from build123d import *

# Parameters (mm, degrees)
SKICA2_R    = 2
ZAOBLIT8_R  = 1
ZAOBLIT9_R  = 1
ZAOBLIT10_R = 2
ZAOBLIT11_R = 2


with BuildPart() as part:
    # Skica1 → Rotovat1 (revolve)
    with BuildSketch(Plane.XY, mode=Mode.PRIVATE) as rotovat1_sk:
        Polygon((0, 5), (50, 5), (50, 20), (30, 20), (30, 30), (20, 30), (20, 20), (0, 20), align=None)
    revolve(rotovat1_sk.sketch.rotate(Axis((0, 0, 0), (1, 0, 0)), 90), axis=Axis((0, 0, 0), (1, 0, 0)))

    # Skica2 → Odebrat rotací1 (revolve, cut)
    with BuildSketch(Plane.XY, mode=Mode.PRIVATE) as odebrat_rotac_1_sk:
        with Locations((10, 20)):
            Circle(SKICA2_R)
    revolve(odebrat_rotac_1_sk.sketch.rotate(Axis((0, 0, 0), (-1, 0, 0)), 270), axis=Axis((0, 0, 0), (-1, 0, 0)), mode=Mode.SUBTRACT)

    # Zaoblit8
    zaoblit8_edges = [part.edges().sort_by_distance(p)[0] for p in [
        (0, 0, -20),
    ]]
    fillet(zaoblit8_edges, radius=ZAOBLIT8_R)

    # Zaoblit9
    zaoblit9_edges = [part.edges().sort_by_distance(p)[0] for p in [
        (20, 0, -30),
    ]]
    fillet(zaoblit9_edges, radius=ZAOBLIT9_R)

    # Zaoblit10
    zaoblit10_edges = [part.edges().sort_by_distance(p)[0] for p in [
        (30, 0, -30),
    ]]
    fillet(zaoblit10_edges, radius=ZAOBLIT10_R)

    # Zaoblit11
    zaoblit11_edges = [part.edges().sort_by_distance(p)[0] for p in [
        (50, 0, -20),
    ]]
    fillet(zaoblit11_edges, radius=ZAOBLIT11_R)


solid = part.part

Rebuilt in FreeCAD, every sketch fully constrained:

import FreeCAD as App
import Part
import Sketcher
Q = App.Units.Quantity


def edges_at(feature, points):
    """Names of the edges that pass closest to the given points."""
    edges = feature.Shape.Edges
    near = lambda p: min(range(len(edges)), key=lambda i: edges[i].distToShape(Part.Vertex(*p))[0])
    return sorted({f"Edge{near(p) + 1}" for p in points})

doc = App.newDocument("Part")
body = doc.addObject("PartDesign::Body", "Body")

sketch1 = body.newObject("Sketcher::SketchObject", "Sketch")
sketch1.AttachmentSupport = (doc.getObject("XY_Plane"), [""])
sketch1.MapMode = "FlatFace"
sketch1.addGeometry([
    Part.LineSegment(App.Vector(0, 5, 0), App.Vector(50, 5, 0)),
    Part.LineSegment(App.Vector(50, 5, 0), App.Vector(50, 20, 0)),
    Part.LineSegment(App.Vector(50, 20, 0), App.Vector(30, 20, 0)),
    Part.LineSegment(App.Vector(30, 20, 0), App.Vector(30, 30, 0)),
    Part.LineSegment(App.Vector(30, 30, 0), App.Vector(20, 30, 0)),
    Part.LineSegment(App.Vector(20, 30, 0), App.Vector(20, 20, 0)),
    Part.LineSegment(App.Vector(20, 20, 0), App.Vector(0, 20, 0)),
    Part.LineSegment(App.Vector(0, 20, 0), App.Vector(0, 5, 0)),
], False)
sketch1.addConstraint([
    Sketcher.Constraint("Coincident", 0, 2, 1, 1),
    Sketcher.Constraint("Coincident", 1, 2, 2, 1),
    Sketcher.Constraint("Coincident", 2, 2, 3, 1),
    Sketcher.Constraint("Coincident", 3, 2, 4, 1),
    Sketcher.Constraint("Coincident", 4, 2, 5, 1),
    Sketcher.Constraint("Coincident", 5, 2, 6, 1),
    Sketcher.Constraint("Coincident", 6, 2, 7, 1),
    Sketcher.Constraint("Coincident", 7, 2, 0, 1),
    Sketcher.Constraint("Horizontal", 0),
    Sketcher.Constraint("Vertical", 1),
    Sketcher.Constraint("Horizontal", 2),
    Sketcher.Constraint("Vertical", 3),
    Sketcher.Constraint("Horizontal", 4),
    Sketcher.Constraint("Vertical", 5),
    Sketcher.Constraint("Horizontal", 6),
    Sketcher.Constraint("Vertical", 7),
    Sketcher.Constraint("PointOnObject", 6, 2, -2),
    Sketcher.Constraint("Horizontal", 2, 2, 5, 2),
    Sketcher.Constraint("Equal", 2, 6),
    Sketcher.Constraint("Equal", 4, 3),
    Sketcher.Constraint("DistanceX", 0, 1, 0, 2, Q("50 mm")),
    Sketcher.Constraint("DistanceX", 2, 2, 2, 1, Q("20 mm")),
    Sketcher.Constraint("DistanceY", 1, 1, 1, 2, Q("15 mm")),
    Sketcher.Constraint("DistanceY", -1, 1, 0, 2, Q("5 mm")),
])
revolution = body.newObject("PartDesign::Revolution", "Revolution")
revolution.Profile = sketch1
revolution.ReferenceAxis = (sketch1, ["H_Axis"])
revolution.Angle = 360

sketch2 = body.newObject("Sketcher::SketchObject", "Sketch001")
sketch2.AttachmentSupport = (doc.getObject("XY_Plane"), [""])
sketch2.MapMode = "FlatFace"
sketch2.addGeometry(Part.Circle(App.Vector(10, 20, 0), App.Vector(0, 0, 1), 2), False)
sketch2.addConstraint([
    Sketcher.Constraint("Diameter", 0, Q("4 mm")),
    Sketcher.Constraint("DistanceX", -1, 1, 0, 3, Q("10 mm")),
    Sketcher.Constraint("DistanceY", -1, 1, 0, 3, Q("20 mm")),
])
groove = body.newObject("PartDesign::Groove", "Groove")
groove.Profile = sketch2
groove.ReferenceAxis = (sketch2, ["H_Axis"])
groove.Angle = 360
doc.recompute()

fillet = body.newObject("PartDesign::Fillet", "Fillet")
fillet.Base = (groove, edges_at(groove, [(0, 0, -20)]))
fillet.Radius = 1
doc.recompute()

fillet2 = body.newObject("PartDesign::Fillet", "Fillet001")
fillet2.Base = (fillet, edges_at(fillet, [(20, 0, -30)]))
fillet2.Radius = 1
doc.recompute()

fillet3 = body.newObject("PartDesign::Fillet", "Fillet002")
fillet3.Base = (fillet2, edges_at(fillet2, [(30, 0, -30)]))
fillet3.Radius = 2
doc.recompute()

fillet4 = body.newObject("PartDesign::Fillet", "Fillet003")
fillet4.Base = (fillet3, edges_at(fillet3, [(50, 0, -20)]))
fillet4.Radius = 2

doc.recompute()
